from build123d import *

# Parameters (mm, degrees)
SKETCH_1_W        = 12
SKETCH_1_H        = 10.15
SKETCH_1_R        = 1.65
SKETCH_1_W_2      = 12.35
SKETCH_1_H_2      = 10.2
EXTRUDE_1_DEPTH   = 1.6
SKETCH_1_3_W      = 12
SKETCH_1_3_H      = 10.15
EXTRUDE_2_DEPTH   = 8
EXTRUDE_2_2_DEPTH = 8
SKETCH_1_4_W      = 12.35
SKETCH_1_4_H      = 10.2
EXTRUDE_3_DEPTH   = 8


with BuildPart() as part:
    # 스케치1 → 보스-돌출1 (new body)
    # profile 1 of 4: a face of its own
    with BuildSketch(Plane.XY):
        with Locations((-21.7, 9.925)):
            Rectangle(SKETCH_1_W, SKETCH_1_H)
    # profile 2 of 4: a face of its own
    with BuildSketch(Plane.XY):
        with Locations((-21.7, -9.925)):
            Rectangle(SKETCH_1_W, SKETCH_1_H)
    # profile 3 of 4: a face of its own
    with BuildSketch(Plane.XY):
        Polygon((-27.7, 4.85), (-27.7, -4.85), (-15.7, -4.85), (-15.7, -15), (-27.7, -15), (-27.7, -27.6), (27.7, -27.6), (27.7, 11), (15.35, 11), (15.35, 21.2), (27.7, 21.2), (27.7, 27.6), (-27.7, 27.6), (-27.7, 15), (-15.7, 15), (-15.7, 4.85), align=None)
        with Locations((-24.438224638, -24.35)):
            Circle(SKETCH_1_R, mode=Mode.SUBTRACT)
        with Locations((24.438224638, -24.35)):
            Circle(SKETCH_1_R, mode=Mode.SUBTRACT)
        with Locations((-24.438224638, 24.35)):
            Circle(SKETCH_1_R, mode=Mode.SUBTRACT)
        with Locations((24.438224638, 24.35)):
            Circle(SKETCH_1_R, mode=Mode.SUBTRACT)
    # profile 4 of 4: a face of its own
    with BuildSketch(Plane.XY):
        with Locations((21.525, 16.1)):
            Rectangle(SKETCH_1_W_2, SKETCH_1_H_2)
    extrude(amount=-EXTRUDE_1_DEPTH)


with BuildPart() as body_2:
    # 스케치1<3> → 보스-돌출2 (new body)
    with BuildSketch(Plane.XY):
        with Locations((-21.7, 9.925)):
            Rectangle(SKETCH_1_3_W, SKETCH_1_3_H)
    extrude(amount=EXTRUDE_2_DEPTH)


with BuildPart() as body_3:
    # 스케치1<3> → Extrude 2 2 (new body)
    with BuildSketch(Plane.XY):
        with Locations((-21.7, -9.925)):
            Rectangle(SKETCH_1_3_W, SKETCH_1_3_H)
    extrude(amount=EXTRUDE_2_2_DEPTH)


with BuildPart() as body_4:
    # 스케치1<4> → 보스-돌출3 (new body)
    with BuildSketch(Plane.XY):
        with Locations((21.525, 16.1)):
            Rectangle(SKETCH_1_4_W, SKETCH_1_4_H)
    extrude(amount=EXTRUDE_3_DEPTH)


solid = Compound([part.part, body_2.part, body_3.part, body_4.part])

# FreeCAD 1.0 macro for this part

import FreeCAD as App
import Part
import Sketcher


def add_polygon(sketch, points):
    """Adds a closed chain of lines whose ends are joined by coincident constraints."""
    first, n = sketch.GeometryCount, len(points)
    for a, b in zip(points, points[1:] + points[:1]):
        sketch.addGeometry(Part.LineSegment(App.Vector(*a, 0), App.Vector(*b, 0)), False)
    for i in range(n):
        sketch.addConstraint(Sketcher.Constraint("Coincident", first + i, 2, first + (i + 1) % n, 1))

doc = App.newDocument("Part")
params = doc.addObject("Spreadsheet::Sheet", "Params")
for row, (alias, value) in enumerate([
    ("sketch1_diameter", "3.3 mm"),
    ("sketch1_width", "55.4 mm"),
    ("sketch1_height", "55.2 mm"),
    ("pad1_length", "1.6 mm"),
    ("sketch2_width", "12 mm"),
    ("sketch2_height", "10.15 mm"),
    ("pad2_length", "8 mm"),
    ("sketch3_width", "12 mm"),
    ("sketch3_height", "10.15 mm"),
    ("pad3_length", "8 mm"),
    ("sketch4_height", "10.2 mm"),
    ("sketch4_width", "12.35 mm"),
    ("pad4_length", "8 mm"),
], start=1):
    params.set(f"A{row}", alias)
    params.set(f"B{row}", "=" + value)
    params.setAlias(f"B{row}", alias)

body = doc.addObject("PartDesign::Body", "Body")

# Sketch on XY plane
sketch1 = body.newObject("Sketcher::SketchObject", "Sketch")
sketch1.AttachmentSupport = (doc.getObject("XY_Plane"), [""])
sketch1.MapMode = "FlatFace"
add_polygon(sketch1, [(-27.7, -27.6), (27.7, -27.6), (27.7, 27.6), (-27.7, 27.6)])  # lines 0-3
sketch1.addGeometry(Part.Circle(App.Vector(24.4, 24.4, 0), App.Vector(0, 0, 1), 1.6), False)  # 4
sketch1.addGeometry(Part.Circle(App.Vector(-24.4, 24.4, 0), App.Vector(0, 0, 1), 1.6), False)  # 5
sketch1.addGeometry(Part.Circle(App.Vector(24.4, -24.4, 0), App.Vector(0, 0, 1), 1.6), False)  # 6
sketch1.addGeometry(Part.Circle(App.Vector(-24.4, -24.4, 0), App.Vector(0, 0, 1), 1.6), False)  # 7
sketch1.addConstraint([
    Sketcher.Constraint("Horizontal", 0),
    Sketcher.Constraint("Vertical", 1),
    Sketcher.Constraint("Horizontal", 2),
    Sketcher.Constraint("Vertical", 3),
    Sketcher.Constraint("Equal", 4, 5),
    Sketcher.Constraint("Equal", 5, 6),
    Sketcher.Constraint("Equal", 6, 7),
    Sketcher.Constraint("Symmetric", 5, 3, 6, 3, -1, 1),
    Sketcher.Constraint("Symmetric", 4, 3, 7, 3, -1, 1),
    Sketcher.Constraint("Symmetric", 0, 2, 2, 2, -1, 1),
    Sketcher.Constraint("Symmetric", 4, 3, 5, 3, -2),
    Sketcher.Constraint("Diameter", 4, 3.3),
    Sketcher.Constraint("DistanceX", 0, 1, 0, 2, 55.4),
    Sketcher.Constraint("DistanceY", 1, 1, 1, 2, 55.2),
    Sketcher.Constraint("DistanceY", 6, 3, 4, 3, 48.7),
    Sketcher.Constraint("DistanceX", 5, 3, 4, 3, 48.876449),
])
sketch1.setExpression("Constraints[15]", "Params.sketch1_diameter")
sketch1.setExpression("Constraints[16]", "Params.sketch1_width")
sketch1.setExpression("Constraints[17]", "Params.sketch1_height")
pad1 = body.newObject("PartDesign::Pad", "Pad")
pad1.Profile = sketch1
pad1.setExpression("Length", "Params.pad1_length")
pad1.Reversed = True
body2 = doc.addObject("PartDesign::Body", "Body001")

# Sketch on XY plane
sketch2 = body2.newObject("Sketcher::SketchObject", "Sketch001")
sketch2.AttachmentSupport = (doc.getObject("XY_Plane001"), [""])
sketch2.MapMode = "FlatFace"
add_polygon(sketch2, [(-28, 15), (-28, 5), (-16, 5), (-16, 15)])  # lines 0-3
sketch2.addConstraint([
    Sketcher.Constraint("Vertical", 0),
    Sketcher.Constraint("Horizontal", 1),
    Sketcher.Constraint("Vertical", 2),
    Sketcher.Constraint("Horizontal", 3),
    Sketcher.Constraint("DistanceX", 1, 1, 1, 2, 12.0),
    Sketcher.Constraint("DistanceY", -1, 1, 2, 2, 15.0),
    Sketcher.Constraint("DistanceY", 0, 2, 0, 1, 10.15),
    Sketcher.Constraint("DistanceX", 0, 2, -1, 1, 27.7),
])
sketch2.setExpression("Constraints[8]", "Params.sketch2_width")
sketch2.setExpression("Constraints[10]", "Params.sketch2_height")
pad2 = body2.newObject("PartDesign::Pad", "Pad001")
pad2.Profile = sketch2
pad2.setExpression("Length", "Params.pad2_length")
body3 = doc.addObject("PartDesign::Body", "Body002")

# Sketch on XY plane
sketch3 = body3.newObject("Sketcher::SketchObject", "Sketch002")
sketch3.AttachmentSupport = (doc.getObject("XY_Plane002"), [""])
sketch3.MapMode = "FlatFace"
add_polygon(sketch3, [(-28, -5), (-28, -15), (-16, -15), (-16, -5)])  # lines 0-3
sketch3.addConstraint([
    Sketcher.Constraint("Vertical", 0),
    Sketcher.Constraint("Horizontal", 1),
    Sketcher.Constraint("Vertical", 2),
    Sketcher.Constraint("Horizontal", 3),
    Sketcher.Constraint("DistanceX", 1, 1, 1, 2, 12.0),
    Sketcher.Constraint("DistanceY", 0, 2, -1, 1, 15.0),
    Sketcher.Constraint("DistanceY", 0, 2, 0, 1, 10.15),
    Sketcher.Constraint("DistanceX", 0, 2, -1, 1, 27.7),
])
sketch3.setExpression("Constraints[8]", "Params.sketch3_width")
sketch3.setExpression("Constraints[10]", "Params.sketch3_height")
pad3 = body3.newObject("PartDesign::Pad", "Pad002")
pad3.Profile = sketch3
pad3.setExpression("Length", "Params.pad3_length")
body4 = doc.addObject("PartDesign::Body", "Body003")

# Sketch on XY plane
sketch4 = body4.newObject("Sketcher::SketchObject", "Sketch003")
sketch4.AttachmentSupport = (doc.getObject("XY_Plane003"), [""])
sketch4.MapMode = "FlatFace"
add_polygon(sketch4, [(15, 21), (15, 11), (28, 11), (28, 21)])  # lines 0-3
sketch4.addConstraint([
    Sketcher.Constraint("Vertical", 0),
    Sketcher.Constraint("Horizontal", 1),
    Sketcher.Constraint("Vertical", 2),
    Sketcher.Constraint("Horizontal", 3),
    Sketcher.Constraint("DistanceY", 0, 2, 0, 1, 10.2),
    Sketcher.Constraint("DistanceY", -1, 1, 0, 2, 11.0),
    Sketcher.Constraint("DistanceX", 1, 1, 1, 2, 12.35),
    Sketcher.Constraint("DistanceX", -1, 1, 1, 2, 27.7),
])
sketch4.setExpression("Constraints[8]", "Params.sketch4_height")
sketch4.setExpression("Constraints[10]", "Params.sketch4_width")
pad4 = body4.newObject("PartDesign::Pad", "Pad003")
pad4.Profile = sketch4
pad4.setExpression("Length", "Params.pad4_length")

doc.recompute()
